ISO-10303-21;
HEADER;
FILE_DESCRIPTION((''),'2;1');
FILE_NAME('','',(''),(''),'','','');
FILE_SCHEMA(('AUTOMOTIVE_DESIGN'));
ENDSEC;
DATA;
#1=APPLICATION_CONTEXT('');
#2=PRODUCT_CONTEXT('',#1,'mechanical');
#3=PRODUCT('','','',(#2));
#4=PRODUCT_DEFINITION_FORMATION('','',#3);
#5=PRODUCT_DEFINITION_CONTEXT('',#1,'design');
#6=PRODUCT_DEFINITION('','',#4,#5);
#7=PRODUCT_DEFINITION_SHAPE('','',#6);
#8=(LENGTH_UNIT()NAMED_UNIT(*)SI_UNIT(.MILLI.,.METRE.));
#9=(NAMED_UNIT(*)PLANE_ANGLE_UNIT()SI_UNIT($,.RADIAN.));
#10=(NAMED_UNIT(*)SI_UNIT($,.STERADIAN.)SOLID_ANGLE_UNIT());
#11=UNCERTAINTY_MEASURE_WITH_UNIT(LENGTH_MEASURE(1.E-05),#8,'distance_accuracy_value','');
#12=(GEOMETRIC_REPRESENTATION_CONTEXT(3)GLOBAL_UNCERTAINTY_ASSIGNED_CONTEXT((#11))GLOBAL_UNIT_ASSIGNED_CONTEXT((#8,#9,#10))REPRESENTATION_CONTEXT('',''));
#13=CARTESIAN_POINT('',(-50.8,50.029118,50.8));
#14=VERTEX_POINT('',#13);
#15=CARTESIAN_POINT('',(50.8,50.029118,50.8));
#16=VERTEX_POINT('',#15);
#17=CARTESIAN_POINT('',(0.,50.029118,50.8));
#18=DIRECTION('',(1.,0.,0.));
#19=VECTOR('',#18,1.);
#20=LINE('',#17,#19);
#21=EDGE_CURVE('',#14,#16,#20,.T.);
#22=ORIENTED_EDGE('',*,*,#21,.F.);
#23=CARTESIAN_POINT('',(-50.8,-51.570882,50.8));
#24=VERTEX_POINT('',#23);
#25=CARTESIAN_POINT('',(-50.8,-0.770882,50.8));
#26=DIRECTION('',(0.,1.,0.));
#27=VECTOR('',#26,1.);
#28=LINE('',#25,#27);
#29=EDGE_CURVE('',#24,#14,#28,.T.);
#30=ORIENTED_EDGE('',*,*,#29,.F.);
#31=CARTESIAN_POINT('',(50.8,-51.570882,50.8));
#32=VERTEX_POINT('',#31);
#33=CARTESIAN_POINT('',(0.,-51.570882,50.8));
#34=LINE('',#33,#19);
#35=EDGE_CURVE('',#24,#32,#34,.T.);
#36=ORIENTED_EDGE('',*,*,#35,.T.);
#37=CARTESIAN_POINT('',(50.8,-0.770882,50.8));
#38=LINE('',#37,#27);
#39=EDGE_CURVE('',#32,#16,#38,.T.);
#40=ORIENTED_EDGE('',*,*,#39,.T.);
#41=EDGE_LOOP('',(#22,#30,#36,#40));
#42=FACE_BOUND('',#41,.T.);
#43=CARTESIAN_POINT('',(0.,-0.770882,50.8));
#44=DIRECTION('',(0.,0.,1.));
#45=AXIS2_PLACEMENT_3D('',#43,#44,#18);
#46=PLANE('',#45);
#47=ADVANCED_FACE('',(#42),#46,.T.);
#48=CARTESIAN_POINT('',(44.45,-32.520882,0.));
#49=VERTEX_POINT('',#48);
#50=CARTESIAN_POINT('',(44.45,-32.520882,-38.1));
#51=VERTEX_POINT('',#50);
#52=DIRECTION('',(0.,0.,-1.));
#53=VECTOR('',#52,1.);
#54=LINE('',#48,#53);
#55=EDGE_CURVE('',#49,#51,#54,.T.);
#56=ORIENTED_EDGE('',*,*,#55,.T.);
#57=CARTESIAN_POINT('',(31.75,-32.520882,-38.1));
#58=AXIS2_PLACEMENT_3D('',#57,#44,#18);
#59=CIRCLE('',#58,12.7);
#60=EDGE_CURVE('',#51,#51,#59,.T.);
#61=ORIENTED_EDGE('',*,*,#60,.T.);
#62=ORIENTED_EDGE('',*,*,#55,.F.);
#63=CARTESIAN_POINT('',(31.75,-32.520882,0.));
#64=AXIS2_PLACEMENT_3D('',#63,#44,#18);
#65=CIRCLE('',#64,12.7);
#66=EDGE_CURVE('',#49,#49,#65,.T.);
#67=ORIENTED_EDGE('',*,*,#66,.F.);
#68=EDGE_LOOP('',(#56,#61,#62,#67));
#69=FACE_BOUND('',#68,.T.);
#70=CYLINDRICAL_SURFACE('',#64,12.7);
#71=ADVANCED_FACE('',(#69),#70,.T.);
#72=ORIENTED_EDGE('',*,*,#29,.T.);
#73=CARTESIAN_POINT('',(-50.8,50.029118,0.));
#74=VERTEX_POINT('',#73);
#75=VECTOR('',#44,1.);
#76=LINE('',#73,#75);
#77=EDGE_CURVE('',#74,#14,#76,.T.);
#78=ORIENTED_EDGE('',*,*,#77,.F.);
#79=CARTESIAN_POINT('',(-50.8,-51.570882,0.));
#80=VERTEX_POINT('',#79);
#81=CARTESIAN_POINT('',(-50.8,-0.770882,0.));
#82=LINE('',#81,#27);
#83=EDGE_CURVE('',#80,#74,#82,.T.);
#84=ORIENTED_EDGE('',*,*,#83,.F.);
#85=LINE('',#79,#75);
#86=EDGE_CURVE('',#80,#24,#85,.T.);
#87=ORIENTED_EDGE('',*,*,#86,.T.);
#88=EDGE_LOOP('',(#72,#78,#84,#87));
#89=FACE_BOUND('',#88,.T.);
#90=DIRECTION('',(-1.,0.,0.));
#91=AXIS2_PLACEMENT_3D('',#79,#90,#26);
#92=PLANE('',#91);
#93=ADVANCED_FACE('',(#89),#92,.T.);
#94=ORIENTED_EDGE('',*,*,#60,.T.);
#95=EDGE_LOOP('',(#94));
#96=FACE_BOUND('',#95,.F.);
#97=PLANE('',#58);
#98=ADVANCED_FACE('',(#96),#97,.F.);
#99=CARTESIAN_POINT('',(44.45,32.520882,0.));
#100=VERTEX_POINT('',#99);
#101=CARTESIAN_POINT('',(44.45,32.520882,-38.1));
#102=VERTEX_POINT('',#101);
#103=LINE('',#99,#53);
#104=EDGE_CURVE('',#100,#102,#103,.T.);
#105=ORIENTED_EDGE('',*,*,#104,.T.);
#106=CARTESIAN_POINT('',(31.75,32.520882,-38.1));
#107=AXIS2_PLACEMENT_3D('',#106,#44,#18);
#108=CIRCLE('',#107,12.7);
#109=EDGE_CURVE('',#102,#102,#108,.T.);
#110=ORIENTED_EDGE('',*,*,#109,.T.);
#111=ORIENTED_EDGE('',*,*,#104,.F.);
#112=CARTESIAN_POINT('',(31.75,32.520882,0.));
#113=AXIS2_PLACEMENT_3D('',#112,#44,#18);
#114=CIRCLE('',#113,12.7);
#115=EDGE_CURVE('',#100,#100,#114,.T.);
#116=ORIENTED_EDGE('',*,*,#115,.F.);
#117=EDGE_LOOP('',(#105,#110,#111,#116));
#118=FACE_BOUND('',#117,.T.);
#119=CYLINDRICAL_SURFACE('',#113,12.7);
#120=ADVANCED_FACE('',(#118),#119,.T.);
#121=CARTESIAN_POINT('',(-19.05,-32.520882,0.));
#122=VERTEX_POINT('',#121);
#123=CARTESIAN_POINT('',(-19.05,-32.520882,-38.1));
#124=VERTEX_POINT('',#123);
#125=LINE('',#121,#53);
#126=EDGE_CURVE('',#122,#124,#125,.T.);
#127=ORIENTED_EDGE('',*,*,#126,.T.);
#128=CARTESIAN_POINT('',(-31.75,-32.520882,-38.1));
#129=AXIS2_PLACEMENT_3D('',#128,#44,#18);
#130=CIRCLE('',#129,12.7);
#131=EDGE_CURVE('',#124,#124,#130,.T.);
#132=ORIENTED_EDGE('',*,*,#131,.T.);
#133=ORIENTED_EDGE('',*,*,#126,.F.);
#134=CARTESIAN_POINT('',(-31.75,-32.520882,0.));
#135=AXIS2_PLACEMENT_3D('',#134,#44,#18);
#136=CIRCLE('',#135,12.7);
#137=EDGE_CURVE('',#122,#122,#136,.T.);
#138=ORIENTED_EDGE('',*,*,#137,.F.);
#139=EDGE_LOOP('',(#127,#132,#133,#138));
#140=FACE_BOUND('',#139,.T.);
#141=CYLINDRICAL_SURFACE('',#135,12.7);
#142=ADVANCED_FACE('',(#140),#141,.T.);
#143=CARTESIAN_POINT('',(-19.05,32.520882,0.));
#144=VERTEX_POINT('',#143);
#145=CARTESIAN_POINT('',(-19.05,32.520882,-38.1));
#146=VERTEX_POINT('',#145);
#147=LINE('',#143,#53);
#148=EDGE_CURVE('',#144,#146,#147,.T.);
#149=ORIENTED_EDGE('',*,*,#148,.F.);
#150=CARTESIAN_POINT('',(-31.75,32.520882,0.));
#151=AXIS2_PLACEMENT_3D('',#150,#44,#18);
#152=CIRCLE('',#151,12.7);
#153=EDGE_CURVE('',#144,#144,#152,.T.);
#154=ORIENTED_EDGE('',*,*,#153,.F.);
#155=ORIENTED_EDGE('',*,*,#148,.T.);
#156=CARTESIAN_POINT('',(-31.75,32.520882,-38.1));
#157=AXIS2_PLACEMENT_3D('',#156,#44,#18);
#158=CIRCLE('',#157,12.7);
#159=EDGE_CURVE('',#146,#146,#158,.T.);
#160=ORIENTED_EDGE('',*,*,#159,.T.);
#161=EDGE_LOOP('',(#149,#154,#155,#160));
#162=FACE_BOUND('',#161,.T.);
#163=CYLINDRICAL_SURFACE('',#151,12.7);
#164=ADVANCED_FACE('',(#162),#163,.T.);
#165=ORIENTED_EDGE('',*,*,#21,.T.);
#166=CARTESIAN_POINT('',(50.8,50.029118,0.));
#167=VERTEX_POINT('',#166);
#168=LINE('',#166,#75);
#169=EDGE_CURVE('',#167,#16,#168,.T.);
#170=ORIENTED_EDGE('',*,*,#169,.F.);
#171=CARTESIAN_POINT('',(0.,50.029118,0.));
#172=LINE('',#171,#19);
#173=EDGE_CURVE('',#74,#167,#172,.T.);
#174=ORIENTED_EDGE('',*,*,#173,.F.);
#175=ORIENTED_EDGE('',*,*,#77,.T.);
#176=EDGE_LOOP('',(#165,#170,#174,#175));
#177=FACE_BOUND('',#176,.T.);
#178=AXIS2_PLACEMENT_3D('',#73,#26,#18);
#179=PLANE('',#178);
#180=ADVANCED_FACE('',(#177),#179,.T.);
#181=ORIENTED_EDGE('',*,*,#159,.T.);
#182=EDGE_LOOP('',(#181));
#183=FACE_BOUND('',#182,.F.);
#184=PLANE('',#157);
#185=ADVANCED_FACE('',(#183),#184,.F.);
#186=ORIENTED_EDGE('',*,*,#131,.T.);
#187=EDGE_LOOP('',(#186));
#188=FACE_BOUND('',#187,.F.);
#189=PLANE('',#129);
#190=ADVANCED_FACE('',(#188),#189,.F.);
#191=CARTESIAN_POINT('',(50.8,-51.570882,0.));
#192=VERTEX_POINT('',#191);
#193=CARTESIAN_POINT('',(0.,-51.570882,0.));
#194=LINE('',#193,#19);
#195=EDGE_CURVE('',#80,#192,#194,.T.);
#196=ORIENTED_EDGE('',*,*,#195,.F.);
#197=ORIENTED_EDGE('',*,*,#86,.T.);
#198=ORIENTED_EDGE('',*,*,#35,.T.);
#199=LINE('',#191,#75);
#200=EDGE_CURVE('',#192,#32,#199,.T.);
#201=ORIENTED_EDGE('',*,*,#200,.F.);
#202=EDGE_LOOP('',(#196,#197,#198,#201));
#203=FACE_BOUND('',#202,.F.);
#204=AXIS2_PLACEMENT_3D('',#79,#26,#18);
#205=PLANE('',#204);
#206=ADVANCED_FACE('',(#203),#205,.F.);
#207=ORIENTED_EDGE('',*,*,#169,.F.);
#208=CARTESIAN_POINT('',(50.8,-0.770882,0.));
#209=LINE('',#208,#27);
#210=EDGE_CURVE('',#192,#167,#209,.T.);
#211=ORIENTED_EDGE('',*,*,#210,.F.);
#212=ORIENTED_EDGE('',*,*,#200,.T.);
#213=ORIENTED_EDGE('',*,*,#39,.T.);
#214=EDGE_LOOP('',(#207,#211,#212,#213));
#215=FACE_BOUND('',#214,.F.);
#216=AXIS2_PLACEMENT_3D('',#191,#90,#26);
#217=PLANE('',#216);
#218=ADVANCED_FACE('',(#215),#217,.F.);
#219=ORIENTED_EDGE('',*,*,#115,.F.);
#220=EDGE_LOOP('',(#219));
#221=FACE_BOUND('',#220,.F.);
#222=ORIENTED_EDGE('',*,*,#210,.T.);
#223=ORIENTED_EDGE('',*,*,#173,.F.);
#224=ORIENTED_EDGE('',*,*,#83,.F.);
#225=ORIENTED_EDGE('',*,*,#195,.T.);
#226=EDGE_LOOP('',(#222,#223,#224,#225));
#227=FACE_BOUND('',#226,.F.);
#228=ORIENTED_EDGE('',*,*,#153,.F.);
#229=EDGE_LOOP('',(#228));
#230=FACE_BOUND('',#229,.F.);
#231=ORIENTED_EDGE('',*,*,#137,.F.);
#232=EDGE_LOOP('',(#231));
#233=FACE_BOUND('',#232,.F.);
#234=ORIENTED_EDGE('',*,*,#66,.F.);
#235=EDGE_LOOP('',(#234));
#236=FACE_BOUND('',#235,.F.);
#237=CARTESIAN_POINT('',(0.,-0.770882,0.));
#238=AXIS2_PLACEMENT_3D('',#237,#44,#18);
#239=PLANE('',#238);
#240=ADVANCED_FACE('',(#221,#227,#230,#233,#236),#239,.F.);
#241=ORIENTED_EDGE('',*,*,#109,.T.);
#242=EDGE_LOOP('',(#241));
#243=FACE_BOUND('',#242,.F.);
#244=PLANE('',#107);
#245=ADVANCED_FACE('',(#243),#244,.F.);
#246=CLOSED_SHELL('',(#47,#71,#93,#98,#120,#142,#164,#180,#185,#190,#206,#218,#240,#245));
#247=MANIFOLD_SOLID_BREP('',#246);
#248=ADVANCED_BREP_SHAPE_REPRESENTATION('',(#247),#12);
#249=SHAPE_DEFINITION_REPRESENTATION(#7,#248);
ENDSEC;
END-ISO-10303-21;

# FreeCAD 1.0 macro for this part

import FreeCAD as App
import Part
import Sketcher

V = App.Vector
Q = App.Units.Quantity


def add_polygon(sketch, points):
    """Adds a closed chain of lines whose ends are joined by coincident constraints."""
    first, n = sketch.GeometryCount, len(points)
    for a, b in zip(points, points[1:] + points[:1]):
        sketch.addGeometry(Part.LineSegment(App.Vector(*a, 0), App.Vector(*b, 0)), False)
    for i in range(n):
        sketch.addConstraint(Sketcher.Constraint("Coincident", first + i, 2, first + (i + 1) % n, 1))

doc = App.newDocument("Part")
params = doc.addObject("Spreadsheet::Sheet", "Params")
for row, (alias, value) in enumerate([
    ("sketch1_width", "4 in"),
    ("pad1_length", "2 in"),
    ("sketch2_diameter", "1 in"),
    ("pad2_length", "1.5 in"),
], start=1):
    params.set(f"A{row}", alias)
    params.set(f"B{row}", "=" + value)
    params.setAlias(f"B{row}", alias)

body = doc.addObject("PartDesign::Body", "Body")

# Sketch on XY plane
sketch1 = body.newObject("Sketcher::SketchObject", "Sketch")
sketch1.AttachmentSupport = (doc.getObject("XY_Plane"), [""])
sketch1.MapMode = "FlatFace"
add_polygon(sketch1, [(-51, 50), (-51, -52), (51, -52), (51, 50)])  # lines 0-3
sketch1.addConstraint(Sketcher.Constraint("Vertical", 0))
sketch1.addConstraint(Sketcher.Constraint("Horizontal", 1))
sketch1.addConstraint(Sketcher.Constraint("Vertical", 2))
sketch1.addConstraint(Sketcher.Constraint("Horizontal", 3))
sketch1.addConstraint(Sketcher.Constraint("Equal", 3, 0))
sketch1.addConstraint(Sketcher.Constraint("DistanceX", 1, 1, 1, 2, Q("4 in")))
sketch1.addConstraint(Sketcher.Constraint("DistanceX", 0, 2, -1, 1, Q("2 in")))
sketch1.addConstraint(Sketcher.Constraint("DistanceY", 0, 2, -1, 1, 51.570882))
sketch1.setExpression("Constraints[9]", "Params.sketch1_width")
pad1 = body.newObject("PartDesign::Pad", "Pad")
pad1.Profile = sketch1
pad1.setExpression("Length", "Params.pad1_length")

# Sketch on XY plane
sketch2 = body.newObject("Sketcher::SketchObject", "Sketch001")
sketch2.AttachmentSupport = (doc.getObject("XY_Plane"), [""])
sketch2.MapMode = "FlatFace"
sketch2.addGeometry(Part.Circle(V(32, -33, 0), V(0, 0, 1), 13), False)
sketch2.addGeometry(Part.Circle(V(-32, -33, 0), V(0, 0, 1), 13), False)
sketch2.addGeometry(Part.Circle(V(32, 33, 0), V(0, 0, 1), 13), False)
sketch2.addGeometry(Part.Circle(V(-32, 33, 0), V(0, 0, 1), 13), False)
sketch2.addConstraint(Sketcher.Constraint("Equal", 0, 1))
sketch2.addConstraint(Sketcher.Constraint("Equal", 1, 2))
sketch2.addConstraint(Sketcher.Constraint("Equal", 2, 3))
sketch2.addConstraint(Sketcher.Constraint("Symmetric", 1, 3, 2, 3, -1, 1))
sketch2.addConstraint(Sketcher.Constraint("Symmetric", 0, 3, 3, 3, -1, 1))
sketch2.addConstraint(Sketcher.Constraint("Symmetric", 0, 3, 1, 3, -2))
sketch2.addConstraint(Sketcher.Constraint("Diameter", 0, Q("1 in")))
sketch2.addConstraint(Sketcher.Constraint("DistanceX", 1, 3, 0, 3, Q("2.5 in")))
sketch2.addConstraint(Sketcher.Constraint("DistanceY", 0, 3, -1, 1, 32.520882))
sketch2.setExpression("Constraints[6]", "Params.sketch2_diameter")
pad2 = body.newObject("PartDesign::Pad", "Pad001")
pad2.Profile = sketch2
pad2.setExpression("Length", "Params.pad2_length")
pad2.Reversed = True

doc.recompute()
